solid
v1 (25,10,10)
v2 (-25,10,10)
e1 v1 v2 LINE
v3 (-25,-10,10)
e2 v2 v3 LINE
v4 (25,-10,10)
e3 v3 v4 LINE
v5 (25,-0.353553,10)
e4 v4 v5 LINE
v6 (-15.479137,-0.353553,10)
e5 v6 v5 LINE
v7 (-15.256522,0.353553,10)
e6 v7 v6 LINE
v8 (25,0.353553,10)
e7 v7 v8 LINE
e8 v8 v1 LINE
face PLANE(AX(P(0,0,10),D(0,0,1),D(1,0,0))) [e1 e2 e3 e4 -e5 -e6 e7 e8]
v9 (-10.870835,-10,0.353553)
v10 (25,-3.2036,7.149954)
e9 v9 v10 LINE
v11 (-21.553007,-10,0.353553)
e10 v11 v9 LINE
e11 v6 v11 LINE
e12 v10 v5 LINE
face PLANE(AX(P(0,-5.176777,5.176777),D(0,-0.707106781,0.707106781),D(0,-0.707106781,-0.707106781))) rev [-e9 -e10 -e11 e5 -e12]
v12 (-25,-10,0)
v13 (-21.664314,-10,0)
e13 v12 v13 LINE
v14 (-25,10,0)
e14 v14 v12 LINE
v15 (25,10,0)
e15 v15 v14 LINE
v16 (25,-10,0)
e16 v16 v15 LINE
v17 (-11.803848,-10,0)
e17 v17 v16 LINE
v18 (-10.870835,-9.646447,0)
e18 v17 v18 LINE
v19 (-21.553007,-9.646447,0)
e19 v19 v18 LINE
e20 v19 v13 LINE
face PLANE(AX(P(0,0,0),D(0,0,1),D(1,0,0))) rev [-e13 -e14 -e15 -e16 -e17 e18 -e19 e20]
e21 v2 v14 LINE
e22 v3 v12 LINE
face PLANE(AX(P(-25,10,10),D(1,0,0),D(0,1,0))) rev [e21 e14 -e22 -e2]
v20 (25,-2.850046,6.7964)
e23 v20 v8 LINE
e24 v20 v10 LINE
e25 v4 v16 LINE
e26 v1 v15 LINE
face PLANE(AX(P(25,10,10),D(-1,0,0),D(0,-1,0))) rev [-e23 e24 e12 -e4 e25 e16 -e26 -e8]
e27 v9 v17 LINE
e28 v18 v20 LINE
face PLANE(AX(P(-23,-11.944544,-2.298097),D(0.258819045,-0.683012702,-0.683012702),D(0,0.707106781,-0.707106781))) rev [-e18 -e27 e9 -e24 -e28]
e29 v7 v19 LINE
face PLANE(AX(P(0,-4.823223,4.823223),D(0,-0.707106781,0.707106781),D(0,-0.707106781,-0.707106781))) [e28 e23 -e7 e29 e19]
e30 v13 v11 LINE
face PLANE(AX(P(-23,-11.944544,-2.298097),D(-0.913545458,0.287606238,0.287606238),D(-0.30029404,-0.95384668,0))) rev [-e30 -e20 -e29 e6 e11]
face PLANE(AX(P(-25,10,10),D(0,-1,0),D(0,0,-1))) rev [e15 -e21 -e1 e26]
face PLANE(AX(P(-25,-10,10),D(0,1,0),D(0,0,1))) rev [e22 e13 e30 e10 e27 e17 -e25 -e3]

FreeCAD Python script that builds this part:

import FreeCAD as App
import Part
import Sketcher

V = App.Vector
Q = App.Units.Quantity

doc = App.newDocument("Part")
body = doc.addObject("PartDesign::Body", "Body")

sketch1 = body.newObject("Sketcher::SketchObject", "Sketch")
sketch1.AttachmentSupport = (doc.getObject("XY_Plane"), [""])
sketch1.MapMode = "FlatFace"
sketch1.addGeometry(Part.LineSegment(V(-25, 10, 0), V(-25, -10, 0)), False)
sketch1.addGeometry(Part.LineSegment(V(-25, -10, 0), V(25, -10, 0)), False)
sketch1.addGeometry(Part.LineSegment(V(25, -10, 0), V(25, 10, 0)), False)
sketch1.addGeometry(Part.LineSegment(V(25, 10, 0), V(-25, 10, 0)), False)
sketch1.addConstraint(Sketcher.Constraint("Coincident", 0, 2, 1, 1))
sketch1.addConstraint(Sketcher.Constraint("Coincident", 1, 2, 2, 1))
sketch1.addConstraint(Sketcher.Constraint("Coincident", 2, 2, 3, 1))
sketch1.addConstraint(Sketcher.Constraint("Coincident", 3, 2, 0, 1))
sketch1.addConstraint(Sketcher.Constraint("Vertical", 0))
sketch1.addConstraint(Sketcher.Constraint("Horizontal", 1))
sketch1.addConstraint(Sketcher.Constraint("Vertical", 2))
sketch1.addConstraint(Sketcher.Constraint("Horizontal", 3))
sketch1.addConstraint(Sketcher.Constraint("Symmetric", 0, 2, 2, 2, -1, 1))
sketch1.addConstraint(Sketcher.Constraint("DistanceX", 1, 1, 1, 2, Q("50 mm")))
sketch1.addConstraint(Sketcher.Constraint("DistanceY", 0, 2, 0, 1, Q("20 mm")))
pad1 = body.newObject("PartDesign::Pad", "Pad")
pad1.Profile = sketch1
pad1.Length = 10

sketch2 = body.newObject("Sketcher::SketchObject", "Sketch001")
sketch2.Placement = App.Placement(V(0, -5, 5), App.Rotation(V(1, 0, 0), V(0, 0.707106781, 0.707106781), V(0, -0.707106781, 0.707106781), "ZXY"))
sketch2.addGeometry(Part.LineSegment(V(-23, -10, 0), V(35, 6, 0)), False)
sketch2.addGeometry(Part.LineSegment(V(35, 6, 0), V(29, 29, 0)), False)
sketch2.addGeometry(Part.LineSegment(V(29, 29, 0), V(-10, 18, 0)), False)
sketch2.addGeometry(Part.LineSegment(V(-10, 18, 0), V(-23, -10, 0)), False)
sketch2.addConstraint(Sketcher.Constraint("Coincident", 0, 2, 1, 1))
sketch2.addConstraint(Sketcher.Constraint("Coincident", 1, 2, 2, 1))
sketch2.addConstraint(Sketcher.Constraint("Coincident", 2, 2, 3, 1))
sketch2.addConstraint(Sketcher.Constraint("Coincident", 3, 2, 0, 1))
sketch2.addConstraint(Sketcher.Constraint("Perpendicular", 0, 1))
sketch2.addConstraint(Sketcher.Constraint("Perpendicular", 1, 2))
sketch2.addConstraint(Sketcher.Constraint("Angle", 0, Q("15 deg")))
sketch2.addConstraint(Sketcher.Constraint("Angle", 3, Q("-114 deg")))
sketch2.addConstraint(Sketcher.Constraint("Distance", 1, Q("24 mm")))
sketch2.addConstraint(Sketcher.Constraint("Distance", 2, Q("41 mm")))
sketch2.addConstraint(Sketcher.Constraint("DistanceX", 3, 2, -1, 1, Q("23 mm")))
sketch2.addConstraint(Sketcher.Constraint("DistanceY", -1, 1, 0, 2, Q("5.570614 mm")))
pocket1 = body.newObject("PartDesign::Pocket", "Pocket")
pocket1.Profile = sketch2
pocket1.Length = 0.5
pocket1.Midplane = True

doc.recompute()
